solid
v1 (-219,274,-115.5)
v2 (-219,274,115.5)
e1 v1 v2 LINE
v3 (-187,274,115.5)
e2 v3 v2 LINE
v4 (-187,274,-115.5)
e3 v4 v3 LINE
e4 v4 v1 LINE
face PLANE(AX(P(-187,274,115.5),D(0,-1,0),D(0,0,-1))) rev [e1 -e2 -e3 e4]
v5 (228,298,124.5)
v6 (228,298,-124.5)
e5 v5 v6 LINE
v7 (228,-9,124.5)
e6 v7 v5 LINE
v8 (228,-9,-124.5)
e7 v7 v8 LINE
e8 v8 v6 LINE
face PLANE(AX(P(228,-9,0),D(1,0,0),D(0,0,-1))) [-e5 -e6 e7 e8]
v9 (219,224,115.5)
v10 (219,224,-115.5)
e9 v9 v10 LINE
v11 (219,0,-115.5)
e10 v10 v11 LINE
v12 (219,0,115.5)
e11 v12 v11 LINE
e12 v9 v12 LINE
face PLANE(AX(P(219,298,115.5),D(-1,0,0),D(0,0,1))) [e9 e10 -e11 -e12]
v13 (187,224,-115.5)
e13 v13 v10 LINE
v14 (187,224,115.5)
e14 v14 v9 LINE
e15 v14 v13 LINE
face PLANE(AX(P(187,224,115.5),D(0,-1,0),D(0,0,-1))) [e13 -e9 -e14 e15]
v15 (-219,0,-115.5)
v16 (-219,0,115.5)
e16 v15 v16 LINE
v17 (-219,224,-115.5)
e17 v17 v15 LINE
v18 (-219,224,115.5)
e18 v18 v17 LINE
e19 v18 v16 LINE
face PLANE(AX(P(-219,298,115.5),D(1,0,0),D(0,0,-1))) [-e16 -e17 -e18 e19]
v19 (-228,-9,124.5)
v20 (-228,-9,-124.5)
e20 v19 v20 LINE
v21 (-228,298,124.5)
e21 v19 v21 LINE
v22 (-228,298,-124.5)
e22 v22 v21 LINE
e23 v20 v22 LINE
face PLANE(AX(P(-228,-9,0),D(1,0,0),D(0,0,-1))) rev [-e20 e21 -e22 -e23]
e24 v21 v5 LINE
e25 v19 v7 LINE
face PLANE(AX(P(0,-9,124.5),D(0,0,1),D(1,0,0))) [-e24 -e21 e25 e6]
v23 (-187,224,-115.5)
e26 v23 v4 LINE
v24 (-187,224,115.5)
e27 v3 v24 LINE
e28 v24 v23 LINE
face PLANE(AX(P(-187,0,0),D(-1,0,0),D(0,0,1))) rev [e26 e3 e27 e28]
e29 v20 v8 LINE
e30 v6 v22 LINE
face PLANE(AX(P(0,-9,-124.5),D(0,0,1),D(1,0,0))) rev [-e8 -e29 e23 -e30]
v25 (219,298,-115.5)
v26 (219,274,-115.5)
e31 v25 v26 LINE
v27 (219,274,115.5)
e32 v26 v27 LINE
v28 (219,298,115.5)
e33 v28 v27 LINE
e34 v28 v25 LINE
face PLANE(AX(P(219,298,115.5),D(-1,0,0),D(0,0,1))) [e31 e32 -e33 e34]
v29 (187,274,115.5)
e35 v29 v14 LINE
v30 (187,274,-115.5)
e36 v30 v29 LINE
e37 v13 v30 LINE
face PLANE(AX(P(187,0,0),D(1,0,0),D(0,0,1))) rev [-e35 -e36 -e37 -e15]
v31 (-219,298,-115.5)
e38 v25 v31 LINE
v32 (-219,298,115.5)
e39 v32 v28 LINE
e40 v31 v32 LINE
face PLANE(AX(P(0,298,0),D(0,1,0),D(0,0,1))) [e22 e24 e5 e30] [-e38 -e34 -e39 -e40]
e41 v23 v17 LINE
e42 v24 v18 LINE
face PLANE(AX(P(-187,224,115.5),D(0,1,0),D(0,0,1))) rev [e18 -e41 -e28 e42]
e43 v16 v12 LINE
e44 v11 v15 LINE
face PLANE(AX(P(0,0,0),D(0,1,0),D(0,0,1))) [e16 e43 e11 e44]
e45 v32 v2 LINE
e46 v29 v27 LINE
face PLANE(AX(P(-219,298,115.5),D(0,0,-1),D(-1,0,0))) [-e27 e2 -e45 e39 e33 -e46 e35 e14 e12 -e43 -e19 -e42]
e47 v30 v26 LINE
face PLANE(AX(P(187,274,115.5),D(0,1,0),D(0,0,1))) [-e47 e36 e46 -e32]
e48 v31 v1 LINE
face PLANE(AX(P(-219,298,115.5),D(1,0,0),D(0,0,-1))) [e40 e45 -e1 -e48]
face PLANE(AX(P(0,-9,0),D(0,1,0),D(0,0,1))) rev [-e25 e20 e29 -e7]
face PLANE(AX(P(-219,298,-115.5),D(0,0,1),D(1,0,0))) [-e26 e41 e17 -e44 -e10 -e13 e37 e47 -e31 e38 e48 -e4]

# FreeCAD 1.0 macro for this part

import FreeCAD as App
import Part
import Sketcher

V = App.Vector


def add_polygon(sketch, points):
    """Adds a closed chain of lines whose ends are joined by coincident constraints."""
    first, n = sketch.GeometryCount, len(points)
    for a, b in zip(points, points[1:] + points[:1]):
        sketch.addGeometry(Part.LineSegment(App.Vector(*a, 0), App.Vector(*b, 0)), False)
    for i in range(n):
        sketch.addConstraint(Sketcher.Constraint("Coincident", first + i, 2, first + (i + 1) % n, 1))

doc = App.newDocument("Part")
body = doc.addObject("PartDesign::Body", "Body")

# Sketch on XZ plane
sketch1 = body.newObject("Sketcher::SketchObject", "Sketch")
sketch1.AttachmentSupport = (doc.getObject("XZ_Plane"), [""])
sketch1.MapMode = "FlatFace"
add_polygon(sketch1, [(-228, -124), (-228, 124), (228, 124), (228, -124)])  # lines 0-3
sketch1.addConstraint([
    Sketcher.Constraint("Vertical", 0),
    Sketcher.Constraint("Horizontal", 1),
    Sketcher.Constraint("Vertical", 2),
    Sketcher.Constraint("Horizontal", 3),
    Sketcher.Constraint("Symmetric", 0, 2, 2, 2, -1, 1),
    Sketcher.Constraint("DistanceX", 1, 1, 1, 2, 456.0),
    Sketcher.Constraint("DistanceY", 0, 1, 0, 2, 249.0),
])
pad1 = body.newObject("PartDesign::Pad", "Pad")
pad1.Profile = sketch1
pad1.Length = 9

# Sketch on XZ plane
sketch2 = body.newObject("Sketcher::SketchObject", "Sketch001")
sketch2.AttachmentSupport = (doc.getObject("XZ_Plane"), [""])
sketch2.MapMode = "FlatFace"
add_polygon(sketch2, [(-228, -124), (-228, 124), (228, 124), (228, -124)])  # lines 0-3
add_polygon(sketch2, [(219, 116), (-219, 116), (-219, -116), (219, -116)])  # lines 4-7
sketch2.addConstraint([
    Sketcher.Constraint("Vertical", 0),
    Sketcher.Constraint("Horizontal", 1),
    Sketcher.Constraint("Vertical", 2),
    Sketcher.Constraint("Horizontal", 3),
    Sketcher.Constraint("Horizontal", 4),
    Sketcher.Constraint("Vertical", 5),
    Sketcher.Constraint("Horizontal", 6),
    Sketcher.Constraint("Vertical", 7),
    Sketcher.Constraint("Symmetric", 0, 2, 2, 2, -1, 1),
    Sketcher.Constraint("Symmetric", 4, 2, 6, 2, -1, 1),
    Sketcher.Constraint("DistanceX", 1, 1, 1, 2, 456.0),
    Sketcher.Constraint("DistanceX", 4, 2, 4, 1, 438.0),
    Sketcher.Constraint("DistanceY", 0, 1, 0, 2, 249.0),
    Sketcher.Constraint("DistanceY", 5, 2, 5, 1, 231.0),
])
pad2 = body.newObject("PartDesign::Pad", "Pad001")
pad2.Profile = sketch2
pad2.Length = 298
pad2.Reversed = True

# Sketch on YZ plane
sketch3 = body.newObject("Sketcher::SketchObject", "Sketch002")
sketch3.AttachmentSupport = (doc.getObject("YZ_Plane"), [""])
sketch3.MapMode = "FlatFace"
sketch3.AttachmentOffset = App.Placement(V(0, 0, -219), App.Rotation())
add_polygon(sketch3, [(274, 116), (224, 116), (224, -116), (274, -116)])  # lines 0-3
sketch3.addConstraint([
    Sketcher.Constraint("Horizontal", 0),
    Sketcher.Constraint("Vertical", 1),
    Sketcher.Constraint("Horizontal", 2),
    Sketcher.Constraint("Vertical", 3),
    Sketcher.Constraint("DistanceX", 0, 2, 0, 1, 50.0),
    Sketcher.Constraint("DistanceY", 1, 2, 1, 1, 231.0),
    Sketcher.Constraint("DistanceX", -1, 1, 0, 2, 224.0),
    Sketcher.Constraint("DistanceY", -1, 1, 0, 2, 115.5),
])
pad3 = body.newObject("PartDesign::Pad", "Pad002")
pad3.Profile = sketch3
pad3.Length = 32
doc.recompute()

mirrored = body.newObject("PartDesign::Mirrored", "Mirrored")
mirrored.Originals = [pad3]
mirrored.MirrorPlane = (doc.getObject("YZ_Plane"), [""])
body.Tip = mirrored

doc.recompute()
